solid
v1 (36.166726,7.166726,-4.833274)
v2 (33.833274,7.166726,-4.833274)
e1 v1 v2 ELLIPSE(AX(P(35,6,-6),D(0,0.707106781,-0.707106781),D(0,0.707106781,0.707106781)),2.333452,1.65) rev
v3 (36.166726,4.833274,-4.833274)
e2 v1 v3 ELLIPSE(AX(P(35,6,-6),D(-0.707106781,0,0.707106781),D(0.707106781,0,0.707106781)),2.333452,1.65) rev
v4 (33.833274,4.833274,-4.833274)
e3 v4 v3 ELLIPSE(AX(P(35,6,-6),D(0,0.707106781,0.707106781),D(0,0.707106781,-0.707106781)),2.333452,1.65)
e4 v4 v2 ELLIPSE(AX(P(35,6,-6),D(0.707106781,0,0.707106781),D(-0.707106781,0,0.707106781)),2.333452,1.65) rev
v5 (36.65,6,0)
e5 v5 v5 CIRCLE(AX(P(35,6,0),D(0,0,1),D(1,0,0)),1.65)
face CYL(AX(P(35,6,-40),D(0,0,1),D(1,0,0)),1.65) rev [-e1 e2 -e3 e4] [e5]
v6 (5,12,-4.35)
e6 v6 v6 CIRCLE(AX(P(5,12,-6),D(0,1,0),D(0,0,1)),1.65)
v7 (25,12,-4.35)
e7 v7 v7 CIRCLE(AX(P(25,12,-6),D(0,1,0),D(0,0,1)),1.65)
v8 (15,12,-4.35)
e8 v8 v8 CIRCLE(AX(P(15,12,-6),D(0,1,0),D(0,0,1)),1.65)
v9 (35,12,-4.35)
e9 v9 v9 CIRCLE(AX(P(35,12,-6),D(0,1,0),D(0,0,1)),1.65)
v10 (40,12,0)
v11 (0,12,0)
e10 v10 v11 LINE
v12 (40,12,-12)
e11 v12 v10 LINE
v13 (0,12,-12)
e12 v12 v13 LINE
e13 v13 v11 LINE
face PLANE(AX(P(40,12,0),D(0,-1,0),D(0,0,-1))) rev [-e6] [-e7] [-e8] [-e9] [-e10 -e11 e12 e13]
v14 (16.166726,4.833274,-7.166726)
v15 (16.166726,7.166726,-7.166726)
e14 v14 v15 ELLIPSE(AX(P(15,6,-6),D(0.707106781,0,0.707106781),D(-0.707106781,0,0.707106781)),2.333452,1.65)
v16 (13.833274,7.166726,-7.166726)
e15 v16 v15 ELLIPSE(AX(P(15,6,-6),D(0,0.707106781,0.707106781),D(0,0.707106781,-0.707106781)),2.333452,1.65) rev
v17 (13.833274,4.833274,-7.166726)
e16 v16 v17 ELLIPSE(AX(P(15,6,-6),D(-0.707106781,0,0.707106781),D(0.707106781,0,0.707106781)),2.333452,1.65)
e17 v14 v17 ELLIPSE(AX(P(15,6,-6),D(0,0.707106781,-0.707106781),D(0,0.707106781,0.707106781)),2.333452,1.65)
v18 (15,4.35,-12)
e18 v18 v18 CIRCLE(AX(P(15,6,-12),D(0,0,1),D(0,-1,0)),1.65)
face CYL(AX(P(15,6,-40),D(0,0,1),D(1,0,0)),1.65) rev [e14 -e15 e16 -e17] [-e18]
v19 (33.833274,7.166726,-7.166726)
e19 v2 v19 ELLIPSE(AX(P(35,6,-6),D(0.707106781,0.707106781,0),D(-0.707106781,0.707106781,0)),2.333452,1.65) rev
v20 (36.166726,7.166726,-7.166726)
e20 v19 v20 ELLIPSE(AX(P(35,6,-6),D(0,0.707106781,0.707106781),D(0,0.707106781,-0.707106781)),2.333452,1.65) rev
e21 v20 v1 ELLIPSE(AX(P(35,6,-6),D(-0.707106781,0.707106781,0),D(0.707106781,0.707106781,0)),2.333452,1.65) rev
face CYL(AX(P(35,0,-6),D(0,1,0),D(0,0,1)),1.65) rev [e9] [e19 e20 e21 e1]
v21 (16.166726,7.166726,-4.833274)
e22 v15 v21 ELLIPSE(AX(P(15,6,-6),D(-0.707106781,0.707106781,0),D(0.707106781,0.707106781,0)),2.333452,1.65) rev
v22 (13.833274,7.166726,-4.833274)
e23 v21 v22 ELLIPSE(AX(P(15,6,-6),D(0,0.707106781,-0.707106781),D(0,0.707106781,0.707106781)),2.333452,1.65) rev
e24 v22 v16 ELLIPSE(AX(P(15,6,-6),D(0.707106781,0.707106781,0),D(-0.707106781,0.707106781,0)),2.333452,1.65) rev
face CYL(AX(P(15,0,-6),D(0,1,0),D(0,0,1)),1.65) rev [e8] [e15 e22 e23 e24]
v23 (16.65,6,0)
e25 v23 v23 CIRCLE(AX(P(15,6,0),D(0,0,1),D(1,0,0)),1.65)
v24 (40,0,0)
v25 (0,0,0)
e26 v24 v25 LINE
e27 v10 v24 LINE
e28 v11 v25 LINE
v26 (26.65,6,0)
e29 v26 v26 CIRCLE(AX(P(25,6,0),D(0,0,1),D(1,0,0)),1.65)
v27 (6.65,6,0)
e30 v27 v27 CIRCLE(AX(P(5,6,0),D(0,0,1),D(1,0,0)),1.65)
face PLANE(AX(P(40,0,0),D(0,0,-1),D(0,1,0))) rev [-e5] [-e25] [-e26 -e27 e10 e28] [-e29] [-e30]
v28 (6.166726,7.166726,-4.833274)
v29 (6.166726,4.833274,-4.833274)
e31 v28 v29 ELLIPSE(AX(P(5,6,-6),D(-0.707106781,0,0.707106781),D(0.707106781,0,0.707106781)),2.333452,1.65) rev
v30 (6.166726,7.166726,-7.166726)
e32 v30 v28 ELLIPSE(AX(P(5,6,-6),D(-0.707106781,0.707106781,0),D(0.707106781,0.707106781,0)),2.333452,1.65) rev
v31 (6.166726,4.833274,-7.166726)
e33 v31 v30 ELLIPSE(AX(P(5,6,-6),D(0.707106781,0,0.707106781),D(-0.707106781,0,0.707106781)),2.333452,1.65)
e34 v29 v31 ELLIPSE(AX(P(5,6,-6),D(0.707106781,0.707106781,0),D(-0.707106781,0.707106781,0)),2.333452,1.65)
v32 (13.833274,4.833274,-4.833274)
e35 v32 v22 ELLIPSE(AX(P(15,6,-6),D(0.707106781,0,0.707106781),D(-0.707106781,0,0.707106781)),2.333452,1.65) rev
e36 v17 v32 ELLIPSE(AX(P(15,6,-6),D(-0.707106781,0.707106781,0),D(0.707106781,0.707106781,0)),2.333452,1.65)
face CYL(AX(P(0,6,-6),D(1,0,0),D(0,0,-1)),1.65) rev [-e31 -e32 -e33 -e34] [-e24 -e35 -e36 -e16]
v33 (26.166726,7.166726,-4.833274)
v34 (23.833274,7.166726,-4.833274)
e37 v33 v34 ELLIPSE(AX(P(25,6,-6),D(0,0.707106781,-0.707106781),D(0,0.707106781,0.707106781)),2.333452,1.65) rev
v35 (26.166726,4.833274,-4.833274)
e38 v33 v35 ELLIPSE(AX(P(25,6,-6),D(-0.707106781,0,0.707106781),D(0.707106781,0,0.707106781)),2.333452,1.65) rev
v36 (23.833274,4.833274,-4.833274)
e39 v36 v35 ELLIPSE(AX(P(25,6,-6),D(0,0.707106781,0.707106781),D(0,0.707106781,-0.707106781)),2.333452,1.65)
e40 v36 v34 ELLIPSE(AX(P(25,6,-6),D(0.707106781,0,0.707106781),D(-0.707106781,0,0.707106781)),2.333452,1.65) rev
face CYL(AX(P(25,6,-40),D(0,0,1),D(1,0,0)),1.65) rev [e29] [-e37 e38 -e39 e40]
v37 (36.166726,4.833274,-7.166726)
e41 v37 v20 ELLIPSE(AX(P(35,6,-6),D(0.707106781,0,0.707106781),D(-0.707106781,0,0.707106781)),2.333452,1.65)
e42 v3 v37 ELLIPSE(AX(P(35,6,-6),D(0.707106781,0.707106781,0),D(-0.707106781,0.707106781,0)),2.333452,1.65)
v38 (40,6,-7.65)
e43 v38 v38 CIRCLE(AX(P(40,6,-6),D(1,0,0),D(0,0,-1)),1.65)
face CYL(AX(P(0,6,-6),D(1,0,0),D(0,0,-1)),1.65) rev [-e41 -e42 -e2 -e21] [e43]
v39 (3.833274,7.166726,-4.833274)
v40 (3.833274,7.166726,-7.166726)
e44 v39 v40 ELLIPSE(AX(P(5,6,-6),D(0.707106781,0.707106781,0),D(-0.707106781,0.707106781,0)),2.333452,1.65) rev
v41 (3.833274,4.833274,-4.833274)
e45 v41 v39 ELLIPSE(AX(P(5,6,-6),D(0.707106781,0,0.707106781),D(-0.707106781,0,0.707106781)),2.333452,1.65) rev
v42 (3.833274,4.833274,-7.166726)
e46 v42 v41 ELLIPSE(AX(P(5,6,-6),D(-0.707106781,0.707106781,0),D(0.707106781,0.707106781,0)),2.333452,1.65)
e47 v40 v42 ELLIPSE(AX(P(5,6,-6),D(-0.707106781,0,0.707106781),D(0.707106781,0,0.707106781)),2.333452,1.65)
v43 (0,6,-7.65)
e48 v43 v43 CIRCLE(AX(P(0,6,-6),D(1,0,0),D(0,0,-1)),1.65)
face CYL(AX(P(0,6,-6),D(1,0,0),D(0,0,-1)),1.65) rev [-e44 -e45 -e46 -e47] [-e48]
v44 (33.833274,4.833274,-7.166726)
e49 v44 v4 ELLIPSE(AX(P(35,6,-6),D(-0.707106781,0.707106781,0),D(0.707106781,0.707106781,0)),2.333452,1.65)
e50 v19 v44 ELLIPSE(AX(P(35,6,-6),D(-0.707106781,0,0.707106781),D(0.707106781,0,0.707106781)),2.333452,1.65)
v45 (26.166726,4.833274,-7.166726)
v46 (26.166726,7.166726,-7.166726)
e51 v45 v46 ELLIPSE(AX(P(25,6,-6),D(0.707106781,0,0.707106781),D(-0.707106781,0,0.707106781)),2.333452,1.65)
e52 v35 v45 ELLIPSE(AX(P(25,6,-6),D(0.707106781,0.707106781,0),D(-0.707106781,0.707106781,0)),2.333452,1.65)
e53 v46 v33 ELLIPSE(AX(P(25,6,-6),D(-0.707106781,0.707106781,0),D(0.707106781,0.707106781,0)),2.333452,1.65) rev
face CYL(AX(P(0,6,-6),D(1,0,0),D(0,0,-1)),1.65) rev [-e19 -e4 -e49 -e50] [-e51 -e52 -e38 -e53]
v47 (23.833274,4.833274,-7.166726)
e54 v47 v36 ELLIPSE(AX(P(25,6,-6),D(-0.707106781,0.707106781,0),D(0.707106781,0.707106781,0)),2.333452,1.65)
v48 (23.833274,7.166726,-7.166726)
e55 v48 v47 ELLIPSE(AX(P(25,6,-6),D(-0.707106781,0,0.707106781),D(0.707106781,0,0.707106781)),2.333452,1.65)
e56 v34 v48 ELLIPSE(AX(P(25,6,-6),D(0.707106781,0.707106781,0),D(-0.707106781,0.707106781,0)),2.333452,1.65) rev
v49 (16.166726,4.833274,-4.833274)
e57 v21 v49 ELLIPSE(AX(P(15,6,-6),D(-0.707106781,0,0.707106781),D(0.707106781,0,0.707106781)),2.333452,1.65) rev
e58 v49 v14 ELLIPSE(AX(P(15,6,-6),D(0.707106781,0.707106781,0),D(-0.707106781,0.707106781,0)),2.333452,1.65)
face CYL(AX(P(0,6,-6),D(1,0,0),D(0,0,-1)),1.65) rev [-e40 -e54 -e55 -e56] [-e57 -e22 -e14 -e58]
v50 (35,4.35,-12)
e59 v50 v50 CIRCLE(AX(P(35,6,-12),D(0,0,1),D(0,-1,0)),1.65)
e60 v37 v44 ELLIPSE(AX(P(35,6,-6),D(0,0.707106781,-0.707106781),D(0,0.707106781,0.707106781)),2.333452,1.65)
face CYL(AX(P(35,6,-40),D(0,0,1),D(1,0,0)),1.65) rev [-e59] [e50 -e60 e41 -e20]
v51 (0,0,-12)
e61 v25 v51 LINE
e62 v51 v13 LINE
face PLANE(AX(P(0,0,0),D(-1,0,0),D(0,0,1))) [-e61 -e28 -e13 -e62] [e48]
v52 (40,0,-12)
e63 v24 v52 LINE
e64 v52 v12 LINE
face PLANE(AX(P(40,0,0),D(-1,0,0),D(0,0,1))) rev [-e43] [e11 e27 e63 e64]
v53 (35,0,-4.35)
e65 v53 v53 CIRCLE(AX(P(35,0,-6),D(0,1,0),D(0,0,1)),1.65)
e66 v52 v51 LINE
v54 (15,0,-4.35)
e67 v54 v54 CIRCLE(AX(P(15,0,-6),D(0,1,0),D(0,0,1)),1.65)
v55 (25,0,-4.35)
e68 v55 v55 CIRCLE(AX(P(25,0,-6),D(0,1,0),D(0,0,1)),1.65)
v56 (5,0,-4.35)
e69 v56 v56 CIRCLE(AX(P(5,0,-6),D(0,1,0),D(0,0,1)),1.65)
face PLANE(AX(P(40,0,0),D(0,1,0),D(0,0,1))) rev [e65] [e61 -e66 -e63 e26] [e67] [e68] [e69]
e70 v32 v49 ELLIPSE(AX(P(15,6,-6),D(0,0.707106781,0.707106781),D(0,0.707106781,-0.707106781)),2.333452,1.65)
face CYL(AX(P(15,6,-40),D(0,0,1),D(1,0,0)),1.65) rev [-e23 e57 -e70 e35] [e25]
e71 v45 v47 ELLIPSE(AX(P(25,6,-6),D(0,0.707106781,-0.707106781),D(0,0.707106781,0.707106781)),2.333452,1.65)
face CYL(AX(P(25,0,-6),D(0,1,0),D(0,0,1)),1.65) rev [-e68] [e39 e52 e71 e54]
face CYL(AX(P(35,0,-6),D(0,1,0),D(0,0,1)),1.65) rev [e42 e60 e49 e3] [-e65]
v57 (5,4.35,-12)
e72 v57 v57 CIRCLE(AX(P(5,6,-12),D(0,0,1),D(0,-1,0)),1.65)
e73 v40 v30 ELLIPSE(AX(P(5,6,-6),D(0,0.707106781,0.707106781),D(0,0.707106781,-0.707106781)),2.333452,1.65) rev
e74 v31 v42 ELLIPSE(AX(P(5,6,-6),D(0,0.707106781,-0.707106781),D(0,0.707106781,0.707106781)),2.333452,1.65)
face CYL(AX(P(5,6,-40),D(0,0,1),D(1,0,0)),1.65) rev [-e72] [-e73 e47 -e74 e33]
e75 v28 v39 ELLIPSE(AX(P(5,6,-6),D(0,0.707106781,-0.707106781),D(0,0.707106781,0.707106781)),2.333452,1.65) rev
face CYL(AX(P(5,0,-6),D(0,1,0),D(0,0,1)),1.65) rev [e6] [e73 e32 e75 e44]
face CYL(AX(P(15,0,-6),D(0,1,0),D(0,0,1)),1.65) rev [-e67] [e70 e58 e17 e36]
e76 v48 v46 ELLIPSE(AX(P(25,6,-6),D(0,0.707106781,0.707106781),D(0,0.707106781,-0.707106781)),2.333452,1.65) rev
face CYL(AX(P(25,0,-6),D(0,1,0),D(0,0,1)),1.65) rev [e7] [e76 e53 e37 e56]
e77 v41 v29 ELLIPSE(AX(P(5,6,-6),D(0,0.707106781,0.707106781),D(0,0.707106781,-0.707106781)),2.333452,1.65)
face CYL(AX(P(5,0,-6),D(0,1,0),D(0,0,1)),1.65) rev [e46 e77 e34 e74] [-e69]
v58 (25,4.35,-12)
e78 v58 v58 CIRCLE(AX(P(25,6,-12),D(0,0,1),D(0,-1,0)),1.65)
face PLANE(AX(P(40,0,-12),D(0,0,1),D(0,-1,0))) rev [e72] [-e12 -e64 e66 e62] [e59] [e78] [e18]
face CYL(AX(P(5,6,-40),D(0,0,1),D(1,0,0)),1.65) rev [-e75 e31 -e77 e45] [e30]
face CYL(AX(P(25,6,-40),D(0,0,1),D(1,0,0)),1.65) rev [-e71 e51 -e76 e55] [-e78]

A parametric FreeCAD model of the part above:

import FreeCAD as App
import Part
import Sketcher

V = App.Vector
Q = App.Units.Quantity

doc = App.newDocument("Part")
body = doc.addObject("PartDesign::Body", "Body")

sketch1 = body.newObject("Sketcher::SketchObject", "Sketch")
sketch1.AttachmentSupport = (doc.getObject("YZ_Plane"), [""])
sketch1.MapMode = "FlatFace"
sketch1.addGeometry([
    Part.LineSegment(V(12, 0, 0), V(0, 0, 0)),
    Part.LineSegment(V(0, 0, 0), V(0, -12, 0)),
    Part.LineSegment(V(0, -12, 0), V(12, -12, 0)),
    Part.LineSegment(V(12, -12, 0), V(12, 0, 0)),
], False)
sketch1.addConstraint([
    Sketcher.Constraint("Coincident", 0, 2, 1, 1),
    Sketcher.Constraint("Coincident", 1, 2, 2, 1),
    Sketcher.Constraint("Coincident", 2, 2, 3, 1),
    Sketcher.Constraint("Coincident", 3, 2, 0, 1),
    Sketcher.Constraint("Horizontal", 0),
    Sketcher.Constraint("Vertical", 1),
    Sketcher.Constraint("Horizontal", 2),
    Sketcher.Constraint("Vertical", 3),
    Sketcher.Constraint("Coincident", 0, 2, -1, 1),
    Sketcher.Constraint("Equal", 2, 1),
    Sketcher.Constraint("DistanceX", 0, 2, 0, 1, Q("12 mm")),
])
pad1 = body.newObject("PartDesign::Pad", "Pad")
pad1.Profile = sketch1
pad1.Length = 40

sketch2 = body.newObject("Sketcher::SketchObject", "Sketch001")
sketch2.AttachmentSupport = (doc.getObject("XZ_Plane"), [""])
sketch2.MapMode = "FlatFace"
sketch2.AttachmentOffset = App.Placement(V(0, 0, -12), App.Rotation())
sketch2.addGeometry([
    Part.Circle(V(5, -6, 0), V(0, 0, 1), 1.6),
    Part.Circle(V(15, -6, 0), V(0, 0, 1), 1.6),
    Part.Circle(V(25, -6, 0), V(0, 0, 1), 1.6),
    Part.Circle(V(35, -6, 0), V(0, 0, 1), 1.6),
], False)
sketch2.addConstraint([
    Sketcher.Constraint("Equal", 0, 1),
    Sketcher.Constraint("Equal", 1, 2),
    Sketcher.Constraint("Equal", 2, 3),
    Sketcher.Constraint("Horizontal", 0, 3, 1, 3),
    Sketcher.Constraint("Horizontal", 1, 3, 2, 3),
    Sketcher.Constraint("Horizontal", 2, 3, 3, 3),
    Sketcher.Constraint("Diameter", 0, Q("3.3 mm")),
    Sketcher.Constraint("DistanceX", -1, 1, 0, 3, Q("5 mm")),
    Sketcher.Constraint("DistanceY", 0, 3, -1, 1, Q("6 mm")),
    Sketcher.Constraint("DistanceX", -1, 1, 1, 3, Q("15 mm")),
    Sketcher.Constraint("DistanceX", -1, 1, 2, 3, Q("25 mm")),
    Sketcher.Constraint("DistanceX", -1, 1, 3, 3, Q("35 mm")),
])
pocket1 = body.newObject("PartDesign::Pocket", "Pocket")
pocket1.Profile = sketch2
pocket1.Type = "ThroughAll"
pocket1.Reversed = True

sketch3 = body.newObject("Sketcher::SketchObject", "Sketch002")
sketch3.AttachmentSupport = (doc.getObject("XY_Plane"), [""])
sketch3.MapMode = "FlatFace"
sketch3.addGeometry([
    Part.Circle(V(5, 6, 0), V(0, 0, 1), 1.6),
    Part.Circle(V(15, 6, 0), V(0, 0, 1), 1.6),
    Part.Circle(V(25, 6, 0), V(0, 0, 1), 1.6),
    Part.Circle(V(35, 6, 0), V(0, 0, 1), 1.6),
], False)
sketch3.addConstraint([
    Sketcher.Constraint("Equal", 0, 1),
    Sketcher.Constraint("Equal", 1, 2),
    Sketcher.Constraint("Equal", 2, 3),
    Sketcher.Constraint("Horizontal", 0, 3, 1, 3),
    Sketcher.Constraint("Horizontal", 1, 3, 2, 3),
    Sketcher.Constraint("Horizontal", 2, 3, 3, 3),
    Sketcher.Constraint("Diameter", 0, Q("3.3 mm")),
    Sketcher.Constraint("DistanceX", -1, 1, 0, 3, Q("5 mm")),
    Sketcher.Constraint("DistanceY", -1, 1, 0, 3, Q("6 mm")),
    Sketcher.Constraint("DistanceX", -1, 1, 1, 3, Q("15 mm")),
    Sketcher.Constraint("DistanceX", -1, 1, 2, 3, Q("25 mm")),
    Sketcher.Constraint("DistanceX", -1, 1, 3, 3, Q("35 mm")),
])
pocket2 = body.newObject("PartDesign::Pocket", "Pocket001")
pocket2.Profile = sketch3
pocket2.Length = 40

sketch4 = body.newObject("Sketcher::SketchObject", "Sketch003")
sketch4.AttachmentSupport = (doc.getObject("YZ_Plane"), [""])
sketch4.MapMode = "FlatFace"
sketch4.AttachmentOffset = App.Placement(V(0, 0, 40), App.Rotation())
sketch4.addGeometry(Part.Circle(V(6, -6, 0), V(0, 0, 1), 1.6), False)
sketch4.addConstraint([
    Sketcher.Constraint("Diameter", 0, Q("3.3 mm")),
    Sketcher.Constraint("DistanceX", -1, 1, 0, 3, Q("6 mm")),
    Sketcher.Constraint("DistanceY", 0, 3, -1, 1, Q("6 mm")),
])
pocket3 = body.newObject("PartDesign::Pocket", "Pocket002")
pocket3.Profile = sketch4
pocket3.Length = 40

doc.recompute()
